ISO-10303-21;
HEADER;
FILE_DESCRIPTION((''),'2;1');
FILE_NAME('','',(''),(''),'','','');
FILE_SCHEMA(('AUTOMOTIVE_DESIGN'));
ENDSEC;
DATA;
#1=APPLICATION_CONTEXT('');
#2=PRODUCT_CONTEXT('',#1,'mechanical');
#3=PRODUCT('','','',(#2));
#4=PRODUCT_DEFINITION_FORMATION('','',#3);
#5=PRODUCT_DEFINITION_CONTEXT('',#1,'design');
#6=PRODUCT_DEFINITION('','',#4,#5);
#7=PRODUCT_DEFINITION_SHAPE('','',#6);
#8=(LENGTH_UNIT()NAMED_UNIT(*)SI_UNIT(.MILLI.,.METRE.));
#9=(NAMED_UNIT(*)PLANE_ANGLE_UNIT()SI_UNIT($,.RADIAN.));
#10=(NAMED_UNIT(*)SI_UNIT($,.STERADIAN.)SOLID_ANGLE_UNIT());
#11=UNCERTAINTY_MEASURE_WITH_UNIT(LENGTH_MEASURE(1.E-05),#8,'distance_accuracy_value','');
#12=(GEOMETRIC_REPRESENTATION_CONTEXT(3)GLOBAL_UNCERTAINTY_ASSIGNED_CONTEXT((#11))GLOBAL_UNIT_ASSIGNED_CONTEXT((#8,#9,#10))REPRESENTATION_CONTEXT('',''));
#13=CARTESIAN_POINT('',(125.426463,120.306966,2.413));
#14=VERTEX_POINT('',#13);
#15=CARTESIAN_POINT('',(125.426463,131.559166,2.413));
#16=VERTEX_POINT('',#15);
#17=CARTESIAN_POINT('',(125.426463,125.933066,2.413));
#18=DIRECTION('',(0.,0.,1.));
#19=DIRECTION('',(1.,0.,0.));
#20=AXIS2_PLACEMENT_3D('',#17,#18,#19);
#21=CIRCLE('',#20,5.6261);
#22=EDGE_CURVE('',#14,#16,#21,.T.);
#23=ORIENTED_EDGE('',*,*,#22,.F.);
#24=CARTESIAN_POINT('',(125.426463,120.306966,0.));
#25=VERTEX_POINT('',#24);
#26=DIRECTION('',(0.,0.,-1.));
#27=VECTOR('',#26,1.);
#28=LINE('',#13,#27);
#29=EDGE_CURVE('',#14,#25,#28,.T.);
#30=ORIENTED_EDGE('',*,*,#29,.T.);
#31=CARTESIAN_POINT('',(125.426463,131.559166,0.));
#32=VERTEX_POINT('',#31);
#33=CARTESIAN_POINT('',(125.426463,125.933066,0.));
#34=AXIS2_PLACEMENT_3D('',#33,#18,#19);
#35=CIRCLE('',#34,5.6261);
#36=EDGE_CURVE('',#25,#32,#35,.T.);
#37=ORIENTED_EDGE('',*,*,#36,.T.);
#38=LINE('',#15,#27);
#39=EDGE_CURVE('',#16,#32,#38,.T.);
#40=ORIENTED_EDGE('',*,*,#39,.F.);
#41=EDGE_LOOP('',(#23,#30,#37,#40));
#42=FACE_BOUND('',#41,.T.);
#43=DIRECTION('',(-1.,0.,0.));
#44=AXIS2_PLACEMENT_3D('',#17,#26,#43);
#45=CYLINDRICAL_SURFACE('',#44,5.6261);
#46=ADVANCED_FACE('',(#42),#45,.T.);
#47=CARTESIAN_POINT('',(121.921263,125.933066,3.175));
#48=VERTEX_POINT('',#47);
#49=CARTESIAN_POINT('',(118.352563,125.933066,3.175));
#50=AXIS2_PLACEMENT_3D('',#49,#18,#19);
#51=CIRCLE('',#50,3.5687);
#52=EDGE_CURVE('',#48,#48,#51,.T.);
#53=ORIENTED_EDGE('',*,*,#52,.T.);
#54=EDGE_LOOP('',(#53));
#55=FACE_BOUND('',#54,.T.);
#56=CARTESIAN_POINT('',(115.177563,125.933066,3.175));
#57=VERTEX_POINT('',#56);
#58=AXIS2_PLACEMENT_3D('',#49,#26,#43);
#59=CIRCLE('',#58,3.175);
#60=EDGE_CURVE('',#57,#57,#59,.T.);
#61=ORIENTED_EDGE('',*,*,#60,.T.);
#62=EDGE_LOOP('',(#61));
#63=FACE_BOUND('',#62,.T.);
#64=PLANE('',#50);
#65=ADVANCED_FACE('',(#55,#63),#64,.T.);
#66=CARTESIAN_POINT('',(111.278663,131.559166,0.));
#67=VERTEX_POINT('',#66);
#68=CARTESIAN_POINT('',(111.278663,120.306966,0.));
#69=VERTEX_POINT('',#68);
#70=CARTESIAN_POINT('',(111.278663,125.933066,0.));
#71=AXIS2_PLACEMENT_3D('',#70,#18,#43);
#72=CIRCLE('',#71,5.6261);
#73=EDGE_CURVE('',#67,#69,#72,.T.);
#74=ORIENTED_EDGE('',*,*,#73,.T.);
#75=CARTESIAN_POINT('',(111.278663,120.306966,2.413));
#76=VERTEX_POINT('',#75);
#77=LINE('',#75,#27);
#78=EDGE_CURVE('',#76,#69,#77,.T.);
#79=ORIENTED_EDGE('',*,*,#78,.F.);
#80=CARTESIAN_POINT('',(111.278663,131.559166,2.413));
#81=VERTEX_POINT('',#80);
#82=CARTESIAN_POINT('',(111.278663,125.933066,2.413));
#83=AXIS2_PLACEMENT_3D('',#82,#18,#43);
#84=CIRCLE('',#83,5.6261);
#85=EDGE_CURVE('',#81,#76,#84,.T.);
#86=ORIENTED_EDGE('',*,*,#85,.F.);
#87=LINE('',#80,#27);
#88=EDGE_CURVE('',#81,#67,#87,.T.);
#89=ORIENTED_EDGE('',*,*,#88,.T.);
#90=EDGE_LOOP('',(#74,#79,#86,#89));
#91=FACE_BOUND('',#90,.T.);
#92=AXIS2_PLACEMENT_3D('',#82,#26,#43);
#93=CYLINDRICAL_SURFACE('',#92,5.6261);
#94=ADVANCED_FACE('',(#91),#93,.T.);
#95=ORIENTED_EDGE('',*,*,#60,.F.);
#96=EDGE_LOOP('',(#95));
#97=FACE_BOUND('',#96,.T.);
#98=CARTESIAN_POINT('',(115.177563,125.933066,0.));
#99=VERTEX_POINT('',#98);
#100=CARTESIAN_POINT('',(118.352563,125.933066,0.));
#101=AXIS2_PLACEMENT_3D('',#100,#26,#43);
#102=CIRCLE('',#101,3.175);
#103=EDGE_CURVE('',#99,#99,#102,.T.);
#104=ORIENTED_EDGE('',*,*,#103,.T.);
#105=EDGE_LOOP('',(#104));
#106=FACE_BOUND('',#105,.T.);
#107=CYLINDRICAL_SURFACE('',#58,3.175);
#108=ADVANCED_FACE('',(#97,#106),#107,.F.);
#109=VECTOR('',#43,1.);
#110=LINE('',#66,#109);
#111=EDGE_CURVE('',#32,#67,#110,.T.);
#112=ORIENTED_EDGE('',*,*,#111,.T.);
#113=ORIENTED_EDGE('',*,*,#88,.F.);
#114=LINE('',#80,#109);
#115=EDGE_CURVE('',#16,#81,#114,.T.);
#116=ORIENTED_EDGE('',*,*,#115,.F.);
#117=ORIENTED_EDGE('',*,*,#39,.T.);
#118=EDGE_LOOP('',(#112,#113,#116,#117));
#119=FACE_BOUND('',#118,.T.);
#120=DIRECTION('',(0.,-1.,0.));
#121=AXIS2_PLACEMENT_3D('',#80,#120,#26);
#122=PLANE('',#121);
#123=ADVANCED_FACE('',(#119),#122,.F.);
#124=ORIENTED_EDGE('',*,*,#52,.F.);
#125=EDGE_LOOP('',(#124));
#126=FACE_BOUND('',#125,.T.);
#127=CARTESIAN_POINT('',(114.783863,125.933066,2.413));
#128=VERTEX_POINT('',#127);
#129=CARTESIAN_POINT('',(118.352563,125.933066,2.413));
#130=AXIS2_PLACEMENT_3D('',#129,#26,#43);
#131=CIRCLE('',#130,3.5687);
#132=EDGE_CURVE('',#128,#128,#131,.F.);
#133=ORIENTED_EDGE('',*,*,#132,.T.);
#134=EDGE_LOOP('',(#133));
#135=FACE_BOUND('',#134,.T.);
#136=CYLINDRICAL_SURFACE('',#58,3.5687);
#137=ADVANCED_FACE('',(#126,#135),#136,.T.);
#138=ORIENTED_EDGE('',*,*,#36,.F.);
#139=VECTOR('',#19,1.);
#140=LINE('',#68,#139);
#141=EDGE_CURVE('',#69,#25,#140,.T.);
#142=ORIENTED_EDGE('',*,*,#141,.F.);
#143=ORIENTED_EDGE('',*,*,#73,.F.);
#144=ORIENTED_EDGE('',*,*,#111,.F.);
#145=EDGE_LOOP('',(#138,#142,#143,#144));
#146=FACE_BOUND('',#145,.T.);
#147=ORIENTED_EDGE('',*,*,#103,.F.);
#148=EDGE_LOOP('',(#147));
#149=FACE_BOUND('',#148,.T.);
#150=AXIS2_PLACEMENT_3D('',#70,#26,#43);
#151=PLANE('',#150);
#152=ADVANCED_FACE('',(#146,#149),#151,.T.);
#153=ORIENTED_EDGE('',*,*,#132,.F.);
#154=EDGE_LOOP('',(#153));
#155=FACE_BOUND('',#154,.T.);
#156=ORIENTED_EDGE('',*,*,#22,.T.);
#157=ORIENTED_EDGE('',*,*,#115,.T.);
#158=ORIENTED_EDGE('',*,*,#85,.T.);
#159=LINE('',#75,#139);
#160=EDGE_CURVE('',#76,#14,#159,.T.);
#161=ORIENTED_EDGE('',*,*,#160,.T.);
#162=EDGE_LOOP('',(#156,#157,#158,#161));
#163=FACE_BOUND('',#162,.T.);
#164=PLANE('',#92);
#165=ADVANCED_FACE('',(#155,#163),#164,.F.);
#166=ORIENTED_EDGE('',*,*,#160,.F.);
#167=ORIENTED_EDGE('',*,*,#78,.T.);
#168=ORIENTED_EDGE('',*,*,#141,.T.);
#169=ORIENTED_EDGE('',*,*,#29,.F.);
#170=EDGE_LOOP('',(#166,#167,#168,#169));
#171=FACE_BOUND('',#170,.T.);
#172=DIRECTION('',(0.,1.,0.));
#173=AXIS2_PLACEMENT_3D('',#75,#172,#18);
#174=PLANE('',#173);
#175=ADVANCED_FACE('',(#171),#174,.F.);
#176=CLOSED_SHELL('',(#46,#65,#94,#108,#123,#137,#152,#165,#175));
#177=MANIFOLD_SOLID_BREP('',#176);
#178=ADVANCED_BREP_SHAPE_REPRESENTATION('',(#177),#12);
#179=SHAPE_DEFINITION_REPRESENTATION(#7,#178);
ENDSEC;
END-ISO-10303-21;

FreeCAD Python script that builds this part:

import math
import FreeCAD as App
import Part
import Sketcher
from FreeCAD import Vector
Q = App.Units.Quantity

doc = App.newDocument("Part")
body = doc.addObject("PartDesign::Body", "Body")

# Sketch on XY plane
sketch1 = doc.addObject("Sketcher::SketchObject", "Sketch")
body.addObject(sketch1)
sketch1.AttachmentSupport = (doc.XY_Plane, [""])
sketch1.MapMode = "FlatFace"
sketch1.addGeometry([
    Part.LineSegment(Vector(125, 132, 0), Vector(111, 132, 0)),
    Part.ArcOfCircle(Part.Circle(Vector(111, 126, 0), Vector(0, 0, 1), 6), math.radians(90), math.radians(270)),
    Part.LineSegment(Vector(111, 120, 0), Vector(125, 120, 0)),
    Part.ArcOfCircle(Part.Circle(Vector(125, 126, 0), Vector(0, 0, 1), 6), math.radians(-90), math.radians(90)),
], False)
sketch1.addConstraint([
    Sketcher.Constraint("Tangent", 0, 2, 1, 1),
    Sketcher.Constraint("Tangent", 1, 2, 2, 1),
    Sketcher.Constraint("Tangent", 2, 2, 3, 1),
    Sketcher.Constraint("Tangent", 3, 2, 0, 1),
    Sketcher.Constraint("Horizontal", 0),
    Sketcher.Constraint("Horizontal", 2),
    Sketcher.Constraint("Radius", 1, Q("0.2215 in")),
    Sketcher.Constraint("DistanceX", 0, 2, 0, 1, Q("0.557 in")),
    Sketcher.Constraint("DistanceX", -1, 1, 1, 3, 111.278663),
    Sketcher.Constraint("DistanceY", -1, 1, 1, 3, 125.933066),
])
pad1 = doc.addObject("PartDesign::Pad", "Pad")
body.addObject(pad1)
pad1.Profile = sketch1
pad1.Length = Q("0.095 in")

# Sketch on XY plane
sketch2 = doc.addObject("Sketcher::SketchObject", "Sketch001")
body.addObject(sketch2)
sketch2.AttachmentSupport = (doc.XY_Plane, [""])
sketch2.MapMode = "FlatFace"
sketch2.AttachmentOffset = App.Placement(Vector(0, 0, 0.095 * 25.4), App.Rotation())
sketch2.addGeometry(Part.Circle(Vector(118.4, 125.9, 0), Vector(0, 0, 1), 3.6), False)
sketch2.addConstraint([
    Sketcher.Constraint("Diameter", 0, Q("0.281 in")),
    Sketcher.Constraint("DistanceX", -1, 1, 0, 3, 118.352563),
    Sketcher.Constraint("DistanceY", -1, 1, 0, 3, 125.933066),
])
pad2 = doc.addObject("PartDesign::Pad", "Pad001")
body.addObject(pad2)
pad2.Profile = sketch2
pad2.Length = Q("0.03 in")

# Sketch on XY plane
sketch3 = doc.addObject("Sketcher::SketchObject", "Sketch002")
body.addObject(sketch3)
sketch3.AttachmentSupport = (doc.XY_Plane, [""])
sketch3.MapMode = "FlatFace"
sketch3.addGeometry(Part.Circle(Vector(118.4, 125.9, 0), Vector(0, 0, 1), 3.2), False)
sketch3.addConstraint([
    Sketcher.Constraint("Diameter", 0, Q("0.25 in")),
    Sketcher.Constraint("DistanceX", -1, 1, 0, 3, 118.352563),
    Sketcher.Constraint("DistanceY", -1, 1, 0, 3, 125.933066),
])
pocket1 = doc.addObject("PartDesign::Pocket", "Pocket")
body.addObject(pocket1)
pocket1.Profile = sketch3
pocket1.Type = "ThroughAll"
pocket1.Reversed = True

doc.recompute()
